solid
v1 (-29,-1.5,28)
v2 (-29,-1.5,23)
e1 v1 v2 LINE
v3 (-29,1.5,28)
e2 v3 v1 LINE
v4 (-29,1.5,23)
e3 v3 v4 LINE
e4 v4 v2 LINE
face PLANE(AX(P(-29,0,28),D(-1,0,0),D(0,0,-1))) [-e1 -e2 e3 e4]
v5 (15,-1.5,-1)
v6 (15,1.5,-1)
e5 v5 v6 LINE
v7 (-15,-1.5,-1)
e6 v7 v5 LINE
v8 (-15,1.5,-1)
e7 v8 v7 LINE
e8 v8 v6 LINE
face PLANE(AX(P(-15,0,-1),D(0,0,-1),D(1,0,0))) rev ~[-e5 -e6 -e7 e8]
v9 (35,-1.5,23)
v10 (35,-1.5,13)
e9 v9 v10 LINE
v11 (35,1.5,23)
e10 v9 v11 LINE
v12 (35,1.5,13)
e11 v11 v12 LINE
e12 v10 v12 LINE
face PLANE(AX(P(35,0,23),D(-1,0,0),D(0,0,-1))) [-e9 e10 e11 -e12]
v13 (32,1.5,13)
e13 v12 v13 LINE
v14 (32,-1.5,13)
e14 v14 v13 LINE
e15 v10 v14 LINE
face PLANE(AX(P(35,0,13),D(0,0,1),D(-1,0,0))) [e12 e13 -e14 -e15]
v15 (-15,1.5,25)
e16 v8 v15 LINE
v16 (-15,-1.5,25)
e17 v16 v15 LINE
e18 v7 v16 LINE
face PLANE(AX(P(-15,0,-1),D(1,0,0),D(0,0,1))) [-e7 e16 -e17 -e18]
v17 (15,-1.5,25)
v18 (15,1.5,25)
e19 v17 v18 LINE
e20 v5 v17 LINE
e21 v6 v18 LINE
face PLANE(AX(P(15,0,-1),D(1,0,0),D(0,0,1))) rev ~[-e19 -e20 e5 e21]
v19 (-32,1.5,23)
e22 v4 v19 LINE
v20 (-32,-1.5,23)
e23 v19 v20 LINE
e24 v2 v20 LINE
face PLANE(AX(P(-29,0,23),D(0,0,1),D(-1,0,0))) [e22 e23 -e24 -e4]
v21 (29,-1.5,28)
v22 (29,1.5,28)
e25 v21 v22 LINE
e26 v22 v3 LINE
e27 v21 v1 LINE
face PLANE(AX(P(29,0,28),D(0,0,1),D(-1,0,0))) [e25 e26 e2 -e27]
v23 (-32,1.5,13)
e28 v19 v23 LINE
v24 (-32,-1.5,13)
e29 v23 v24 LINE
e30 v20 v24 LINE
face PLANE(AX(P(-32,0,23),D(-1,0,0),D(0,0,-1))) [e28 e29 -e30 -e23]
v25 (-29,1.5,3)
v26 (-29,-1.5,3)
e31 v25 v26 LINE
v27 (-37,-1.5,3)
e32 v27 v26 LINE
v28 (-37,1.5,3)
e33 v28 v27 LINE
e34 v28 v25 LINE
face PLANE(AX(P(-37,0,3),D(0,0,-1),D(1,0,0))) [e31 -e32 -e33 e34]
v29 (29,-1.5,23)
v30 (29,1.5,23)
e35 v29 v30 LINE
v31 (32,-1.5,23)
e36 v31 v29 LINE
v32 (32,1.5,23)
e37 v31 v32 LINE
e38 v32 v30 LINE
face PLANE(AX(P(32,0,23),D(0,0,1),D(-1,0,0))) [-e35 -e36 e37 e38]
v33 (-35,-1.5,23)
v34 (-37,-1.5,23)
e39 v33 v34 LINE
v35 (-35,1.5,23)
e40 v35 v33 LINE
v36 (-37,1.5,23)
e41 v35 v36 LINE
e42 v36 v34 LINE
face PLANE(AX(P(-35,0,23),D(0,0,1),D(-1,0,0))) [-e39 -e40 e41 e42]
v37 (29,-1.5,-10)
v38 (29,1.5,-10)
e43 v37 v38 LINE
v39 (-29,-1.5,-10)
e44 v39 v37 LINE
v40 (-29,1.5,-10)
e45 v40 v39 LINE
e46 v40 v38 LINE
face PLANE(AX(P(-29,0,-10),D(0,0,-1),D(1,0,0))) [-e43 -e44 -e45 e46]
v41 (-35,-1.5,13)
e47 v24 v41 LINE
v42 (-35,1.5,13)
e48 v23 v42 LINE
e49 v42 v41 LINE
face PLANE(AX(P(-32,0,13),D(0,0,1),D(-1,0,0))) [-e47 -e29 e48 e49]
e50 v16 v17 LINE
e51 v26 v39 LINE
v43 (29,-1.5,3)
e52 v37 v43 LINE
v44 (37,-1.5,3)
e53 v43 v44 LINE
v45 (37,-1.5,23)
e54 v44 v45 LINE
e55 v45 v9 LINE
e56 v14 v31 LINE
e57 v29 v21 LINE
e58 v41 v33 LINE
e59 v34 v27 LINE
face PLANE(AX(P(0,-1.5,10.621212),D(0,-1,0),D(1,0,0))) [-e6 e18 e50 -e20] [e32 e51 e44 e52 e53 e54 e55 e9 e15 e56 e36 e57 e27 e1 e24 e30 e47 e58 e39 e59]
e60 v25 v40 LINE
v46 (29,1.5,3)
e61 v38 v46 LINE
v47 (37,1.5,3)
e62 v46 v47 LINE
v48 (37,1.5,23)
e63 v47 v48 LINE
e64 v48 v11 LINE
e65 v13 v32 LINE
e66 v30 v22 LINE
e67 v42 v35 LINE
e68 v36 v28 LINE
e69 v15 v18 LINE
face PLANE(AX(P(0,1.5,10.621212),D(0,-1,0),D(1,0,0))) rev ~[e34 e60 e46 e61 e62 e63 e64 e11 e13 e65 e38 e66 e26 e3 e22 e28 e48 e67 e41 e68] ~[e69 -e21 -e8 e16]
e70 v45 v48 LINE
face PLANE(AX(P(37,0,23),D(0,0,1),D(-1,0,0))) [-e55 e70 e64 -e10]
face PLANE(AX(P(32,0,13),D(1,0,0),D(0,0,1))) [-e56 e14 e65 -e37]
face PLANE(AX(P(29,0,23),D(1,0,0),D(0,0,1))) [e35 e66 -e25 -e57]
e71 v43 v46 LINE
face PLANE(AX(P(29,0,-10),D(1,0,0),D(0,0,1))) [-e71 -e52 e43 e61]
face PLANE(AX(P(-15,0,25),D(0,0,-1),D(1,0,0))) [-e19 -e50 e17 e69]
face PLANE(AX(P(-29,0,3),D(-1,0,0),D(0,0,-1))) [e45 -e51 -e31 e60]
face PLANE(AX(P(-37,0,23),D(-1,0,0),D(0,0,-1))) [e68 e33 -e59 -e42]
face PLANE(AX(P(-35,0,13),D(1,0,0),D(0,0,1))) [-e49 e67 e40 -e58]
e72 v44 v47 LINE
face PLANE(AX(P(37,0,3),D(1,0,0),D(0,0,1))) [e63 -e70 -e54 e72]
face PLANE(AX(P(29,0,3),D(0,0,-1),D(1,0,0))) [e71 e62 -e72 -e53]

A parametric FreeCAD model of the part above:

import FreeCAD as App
import Part
import Sketcher
Q = App.Units.Quantity

doc = App.newDocument("Part")
body = doc.addObject("PartDesign::Body", "Body")

sketch1 = doc.addObject("Sketcher::SketchObject", "Sketch")
body.addObject(sketch1)
sketch1.AttachmentSupport = (doc.XZ_Plane, [""])
sketch1.MapMode = "FlatFace"
sketch1.addGeometry([
    Part.LineSegment(App.Vector(29, 28, 0), App.Vector(-29, 28, 0)),
    Part.LineSegment(App.Vector(-29, 28, 0), App.Vector(-29, 23, 0)),
    Part.LineSegment(App.Vector(-29, 23, 0), App.Vector(-32, 23, 0)),
    Part.LineSegment(App.Vector(-32, 23, 0), App.Vector(-32, 13, 0)),
    Part.LineSegment(App.Vector(-32, 13, 0), App.Vector(-35, 13, 0)),
    Part.LineSegment(App.Vector(-35, 13, 0), App.Vector(-35, 23, 0)),
    Part.LineSegment(App.Vector(-35, 23, 0), App.Vector(-37, 23, 0)),
    Part.LineSegment(App.Vector(-37, 23, 0), App.Vector(-37, 3, 0)),
    Part.LineSegment(App.Vector(-37, 3, 0), App.Vector(-29, 3, 0)),
    Part.LineSegment(App.Vector(-29, 3, 0), App.Vector(-29, -10, 0)),
    Part.LineSegment(App.Vector(-29, -10, 0), App.Vector(29, -10, 0)),
    Part.LineSegment(App.Vector(29, -10, 0), App.Vector(29, 3, 0)),
    Part.LineSegment(App.Vector(29, 3, 0), App.Vector(37, 3, 0)),
    Part.LineSegment(App.Vector(37, 3, 0), App.Vector(37, 23, 0)),
    Part.LineSegment(App.Vector(37, 23, 0), App.Vector(35, 23, 0)),
    Part.LineSegment(App.Vector(35, 23, 0), App.Vector(35, 13, 0)),
    Part.LineSegment(App.Vector(35, 13, 0), App.Vector(32, 13, 0)),
    Part.LineSegment(App.Vector(32, 13, 0), App.Vector(32, 23, 0)),
    Part.LineSegment(App.Vector(32, 23, 0), App.Vector(29, 23, 0)),
    Part.LineSegment(App.Vector(29, 23, 0), App.Vector(29, 28, 0)),
    Part.LineSegment(App.Vector(15, -1, 0), App.Vector(-15, -1, 0)),
    Part.LineSegment(App.Vector(-15, -1, 0), App.Vector(-15, 25, 0)),
    Part.LineSegment(App.Vector(-15, 25, 0), App.Vector(15, 25, 0)),
    Part.LineSegment(App.Vector(15, 25, 0), App.Vector(15, -1, 0)),
], False)
sketch1.addConstraint([
    Sketcher.Constraint("Coincident", 0, 2, 1, 1),
    Sketcher.Constraint("Coincident", 1, 2, 2, 1),
    Sketcher.Constraint("Coincident", 2, 2, 3, 1),
    Sketcher.Constraint("Coincident", 3, 2, 4, 1),
    Sketcher.Constraint("Coincident", 4, 2, 5, 1),
    Sketcher.Constraint("Coincident", 5, 2, 6, 1),
    Sketcher.Constraint("Coincident", 6, 2, 7, 1),
    Sketcher.Constraint("Coincident", 7, 2, 8, 1),
    Sketcher.Constraint("Coincident", 8, 2, 9, 1),
    Sketcher.Constraint("Coincident", 9, 2, 10, 1),
    Sketcher.Constraint("Coincident", 10, 2, 11, 1),
    Sketcher.Constraint("Coincident", 11, 2, 12, 1),
    Sketcher.Constraint("Coincident", 12, 2, 13, 1),
    Sketcher.Constraint("Coincident", 13, 2, 14, 1),
    Sketcher.Constraint("Coincident", 14, 2, 15, 1),
    Sketcher.Constraint("Coincident", 15, 2, 16, 1),
    Sketcher.Constraint("Coincident", 16, 2, 17, 1),
    Sketcher.Constraint("Coincident", 17, 2, 18, 1),
    Sketcher.Constraint("Coincident", 18, 2, 19, 1),
    Sketcher.Constraint("Coincident", 19, 2, 0, 1),
    Sketcher.Constraint("Coincident", 20, 2, 21, 1),
    Sketcher.Constraint("Coincident", 21, 2, 22, 1),
    Sketcher.Constraint("Coincident", 22, 2, 23, 1),
    Sketcher.Constraint("Coincident", 23, 2, 20, 1),
    Sketcher.Constraint("Horizontal", 0),
    Sketcher.Constraint("Vertical", 1),
    Sketcher.Constraint("Horizontal", 2),
    Sketcher.Constraint("Vertical", 3),
    Sketcher.Constraint("Horizontal", 4),
    Sketcher.Constraint("Vertical", 5),
    Sketcher.Constraint("Horizontal", 6),
    Sketcher.Constraint("Vertical", 7),
    Sketcher.Constraint("Horizontal", 8),
    Sketcher.Constraint("Vertical", 9),
    Sketcher.Constraint("Horizontal", 10),
    Sketcher.Constraint("Vertical", 11),
    Sketcher.Constraint("Horizontal", 12),
    Sketcher.Constraint("Vertical", 13),
    Sketcher.Constraint("Horizontal", 14),
    Sketcher.Constraint("Vertical", 15),
    Sketcher.Constraint("Horizontal", 16),
    Sketcher.Constraint("Vertical", 17),
    Sketcher.Constraint("Horizontal", 18),
    Sketcher.Constraint("Vertical", 19),
    Sketcher.Constraint("Horizontal", 20),
    Sketcher.Constraint("Vertical", 21),
    Sketcher.Constraint("Horizontal", 22),
    Sketcher.Constraint("Vertical", 23),
    Sketcher.Constraint("Symmetric", 8, 2, 11, 2, -2),
    Sketcher.Constraint("Symmetric", 6, 2, 13, 2, -2),
    Sketcher.Constraint("Symmetric", 4, 2, 15, 2, -2),
    Sketcher.Constraint("Symmetric", 2, 2, 17, 2, -2),
    Sketcher.Constraint("Horizontal", 2, 2, 5, 2),
    Sketcher.Constraint("Vertical", 1, 2, 8, 2),
    Sketcher.Constraint("Vertical", 11, 2, 18, 2),
    Sketcher.Constraint("Equal", 2, 4),
    Sketcher.Constraint("DistanceX", 0, 2, 0, 1, Q("58 mm")),
    Sketcher.Constraint("DistanceX", 2, 2, 2, 1, Q("3 mm")),
    Sketcher.Constraint("DistanceX", 6, 2, 6, 1, Q("2 mm")),
    Sketcher.Constraint("DistanceX", 20, 2, 20, 1, Q("30 mm")),
    Sketcher.Constraint("DistanceY", 1, 2, 1, 1, Q("5 mm")),
    Sketcher.Constraint("DistanceY", 3, 2, 3, 1, Q("10 mm")),
    Sketcher.Constraint("DistanceY", 7, 2, 7, 1, Q("20 mm")),
    Sketcher.Constraint("DistanceY", 9, 2, 9, 1, Q("13 mm")),
    Sketcher.Constraint("DistanceY", 21, 1, 21, 2, Q("26 mm")),
    Sketcher.Constraint("DistanceY", -1, 1, 0, 2, Q("28 mm")),
    Sketcher.Constraint("DistanceX", 20, 2, -1, 1, Q("15 mm")),
    Sketcher.Constraint("DistanceY", 20, 2, -1, 1, Q("1 mm")),
])
pad1 = doc.addObject("PartDesign::Pad", "Pad")
body.addObject(pad1)
pad1.Profile = sketch1
pad1.Length = 3
pad1.Midplane = True

doc.recompute()
